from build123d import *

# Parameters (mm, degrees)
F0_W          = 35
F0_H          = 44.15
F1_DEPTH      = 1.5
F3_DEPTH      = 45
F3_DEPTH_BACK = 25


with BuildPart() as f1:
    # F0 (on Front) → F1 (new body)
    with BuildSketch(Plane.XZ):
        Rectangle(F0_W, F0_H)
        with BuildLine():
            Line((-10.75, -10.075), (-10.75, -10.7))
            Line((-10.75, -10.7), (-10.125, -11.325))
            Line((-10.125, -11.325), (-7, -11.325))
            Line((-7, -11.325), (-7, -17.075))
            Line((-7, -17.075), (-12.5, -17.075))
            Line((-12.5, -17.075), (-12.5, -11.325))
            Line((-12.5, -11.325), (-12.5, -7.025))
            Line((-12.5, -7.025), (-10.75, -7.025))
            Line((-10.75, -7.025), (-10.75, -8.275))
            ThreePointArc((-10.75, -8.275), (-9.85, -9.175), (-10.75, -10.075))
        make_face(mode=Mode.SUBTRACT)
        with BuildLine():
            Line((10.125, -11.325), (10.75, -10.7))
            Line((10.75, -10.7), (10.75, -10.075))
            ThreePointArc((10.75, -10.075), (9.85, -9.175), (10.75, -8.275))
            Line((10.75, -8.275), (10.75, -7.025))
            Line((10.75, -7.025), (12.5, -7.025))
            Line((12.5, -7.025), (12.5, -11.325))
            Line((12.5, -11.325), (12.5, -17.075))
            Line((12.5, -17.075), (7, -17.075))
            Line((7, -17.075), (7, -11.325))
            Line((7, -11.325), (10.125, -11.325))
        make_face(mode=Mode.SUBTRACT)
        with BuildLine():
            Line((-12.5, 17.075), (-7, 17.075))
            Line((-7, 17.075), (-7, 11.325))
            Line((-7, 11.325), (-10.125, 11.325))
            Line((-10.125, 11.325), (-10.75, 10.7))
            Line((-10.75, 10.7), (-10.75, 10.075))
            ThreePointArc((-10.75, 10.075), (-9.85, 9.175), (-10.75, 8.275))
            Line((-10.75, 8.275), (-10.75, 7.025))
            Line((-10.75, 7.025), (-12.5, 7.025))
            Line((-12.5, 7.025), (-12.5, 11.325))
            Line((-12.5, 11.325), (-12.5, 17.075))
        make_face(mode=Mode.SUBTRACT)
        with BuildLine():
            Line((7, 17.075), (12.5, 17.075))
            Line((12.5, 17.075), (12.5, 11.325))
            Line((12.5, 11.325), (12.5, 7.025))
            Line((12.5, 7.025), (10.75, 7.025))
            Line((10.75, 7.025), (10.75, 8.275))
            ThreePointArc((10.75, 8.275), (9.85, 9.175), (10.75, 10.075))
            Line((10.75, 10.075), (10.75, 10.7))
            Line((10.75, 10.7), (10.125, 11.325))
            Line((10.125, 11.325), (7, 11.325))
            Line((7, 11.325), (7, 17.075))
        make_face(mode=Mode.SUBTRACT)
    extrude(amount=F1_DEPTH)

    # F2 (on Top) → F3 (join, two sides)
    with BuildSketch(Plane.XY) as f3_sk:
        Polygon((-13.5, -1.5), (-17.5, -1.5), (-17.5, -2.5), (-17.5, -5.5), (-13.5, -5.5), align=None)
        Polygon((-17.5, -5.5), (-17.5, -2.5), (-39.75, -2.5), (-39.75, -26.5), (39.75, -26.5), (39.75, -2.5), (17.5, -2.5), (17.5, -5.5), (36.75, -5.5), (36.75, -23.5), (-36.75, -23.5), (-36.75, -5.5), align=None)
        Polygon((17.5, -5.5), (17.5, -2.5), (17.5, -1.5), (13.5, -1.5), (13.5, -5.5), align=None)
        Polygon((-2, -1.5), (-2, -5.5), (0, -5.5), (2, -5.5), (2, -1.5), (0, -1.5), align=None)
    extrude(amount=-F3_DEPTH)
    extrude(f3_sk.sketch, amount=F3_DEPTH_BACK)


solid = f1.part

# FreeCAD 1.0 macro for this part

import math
import FreeCAD as App
import Part
import Sketcher
from FreeCAD import Vector
Q = App.Units.Quantity


def add_polygon(sketch, points):
    """Adds a closed chain of lines whose ends are joined by coincident constraints."""
    first, n = sketch.GeometryCount, len(points)
    for a, b in zip(points, points[1:] + points[:1]):
        sketch.addGeometry(Part.LineSegment(App.Vector(*a, 0), App.Vector(*b, 0)), False)
    for i in range(n):
        sketch.addConstraint(Sketcher.Constraint("Coincident", first + i, 2, first + (i + 1) % n, 1))

doc = App.newDocument("Part")
body = doc.addObject("PartDesign::Body", "Body")

# Sketch on XZ plane
sketch1 = body.newObject("Sketcher::SketchObject", "Sketch")
sketch1.AttachmentSupport = (doc.getObject("XZ_Plane"), [""])
sketch1.MapMode = "FlatFace"
add_polygon(sketch1, [(-17.5, 22.1), (-17.5, -22.1), (17.5, -22.1), (17.5, 22.1)])  # lines 0-3
sketch1.addGeometry(Part.ArcOfCircle(Part.Circle(Vector(-10.8, -9.2, 0), Vector(0, 0, 1), 0.9), math.radians(-90), math.radians(90)), False)  # 4
sketch1.addGeometry(Part.LineSegment(Vector(-10.8, -10.1, 0), Vector(-10.8, -10.7, 0)), False)  # 5
sketch1.addGeometry(Part.LineSegment(Vector(-10.8, -10.7, 0), Vector(-10.1, -11.3, 0)), False)  # 6
sketch1.addGeometry(Part.LineSegment(Vector(-10.1, -11.3, 0), Vector(-7, -11.3, 0)), False)  # 7
sketch1.addGeometry(Part.LineSegment(Vector(-7, -11.3, 0), Vector(-7, -17.1, 0)), False)  # 8
sketch1.addGeometry(Part.LineSegment(Vector(-7, -17.1, 0), Vector(-12.5, -17.1, 0)), False)  # 9
sketch1.addGeometry(Part.LineSegment(Vector(-12.5, -17.1, 0), Vector(-12.5, -7, 0)), False)  # 10
sketch1.addGeometry(Part.LineSegment(Vector(-12.5, -7, 0), Vector(-10.8, -7, 0)), False)  # 11
sketch1.addGeometry(Part.LineSegment(Vector(-10.8, -7, 0), Vector(-10.8, -8.3, 0)), False)  # 12
sketch1.addGeometry(Part.LineSegment(Vector(7, -11.3, 0), Vector(10.1, -11.3, 0)), False)  # 13
sketch1.addGeometry(Part.LineSegment(Vector(10.1, -11.3, 0), Vector(10.8, -10.7, 0)), False)  # 14
sketch1.addGeometry(Part.LineSegment(Vector(10.8, -10.7, 0), Vector(10.8, -10.1, 0)), False)  # 15
sketch1.addGeometry(Part.ArcOfCircle(Part.Circle(Vector(10.8, -9.2, 0), Vector(0, 0, 1), 0.9), math.radians(90), math.radians(270)), False)  # 16
sketch1.addGeometry(Part.LineSegment(Vector(10.8, -8.3, 0), Vector(10.8, -7, 0)), False)  # 17
sketch1.addGeometry(Part.LineSegment(Vector(10.8, -7, 0), Vector(12.5, -7, 0)), False)  # 18
sketch1.addGeometry(Part.LineSegment(Vector(12.5, -7, 0), Vector(12.5, -17.1, 0)), False)  # 19
sketch1.addGeometry(Part.LineSegment(Vector(12.5, -17.1, 0), Vector(7, -17.1, 0)), False)  # 20
sketch1.addGeometry(Part.LineSegment(Vector(7, -17.1, 0), Vector(7, -11.3, 0)), False)  # 21
sketch1.addGeometry(Part.LineSegment(Vector(-12.5, 7, 0), Vector(-12.5, 17.1, 0)), False)  # 22
sketch1.addGeometry(Part.LineSegment(Vector(-12.5, 17.1, 0), Vector(-7, 17.1, 0)), False)  # 23
sketch1.addGeometry(Part.LineSegment(Vector(-7, 17.1, 0), Vector(-7, 11.3, 0)), False)  # 24
sketch1.addGeometry(Part.LineSegment(Vector(-7, 11.3, 0), Vector(-10.1, 11.3, 0)), False)  # 25
sketch1.addGeometry(Part.LineSegment(Vector(-10.1, 11.3, 0), Vector(-10.8, 10.7, 0)), False)  # 26
sketch1.addGeometry(Part.LineSegment(Vector(-10.8, 10.7, 0), Vector(-10.8, 10.1, 0)), False)  # 27
sketch1.addGeometry(Part.ArcOfCircle(Part.Circle(Vector(-10.8, 9.2, 0), Vector(0, 0, 1), 0.9), math.radians(-90), math.radians(90)), False)  # 28
sketch1.addGeometry(Part.LineSegment(Vector(-10.8, 8.3, 0), Vector(-10.8, 7, 0)), False)  # 29
sketch1.addGeometry(Part.LineSegment(Vector(-10.8, 7, 0), Vector(-12.5, 7, 0)), False)  # 30
sketch1.addGeometry(Part.LineSegment(Vector(7, 11.3, 0), Vector(7, 17.1, 0)), False)  # 31
sketch1.addGeometry(Part.LineSegment(Vector(7, 17.1, 0), Vector(12.5, 17.1, 0)), False)  # 32
sketch1.addGeometry(Part.LineSegment(Vector(12.5, 17.1, 0), Vector(12.5, 7, 0)), False)  # 33
sketch1.addGeometry(Part.LineSegment(Vector(12.5, 7, 0), Vector(10.8, 7, 0)), False)  # 34
sketch1.addGeometry(Part.LineSegment(Vector(10.8, 7, 0), Vector(10.8, 8.3, 0)), False)  # 35
sketch1.addGeometry(Part.ArcOfCircle(Part.Circle(Vector(10.8, 9.2, 0), Vector(0, 0, 1), 0.9), math.radians(90), math.radians(270)), False)  # 36
sketch1.addGeometry(Part.LineSegment(Vector(10.8, 10.1, 0), Vector(10.8, 10.7, 0)), False)  # 37
sketch1.addGeometry(Part.LineSegment(Vector(10.8, 10.7, 0), Vector(10.1, 11.3, 0)), False)  # 38
sketch1.addGeometry(Part.LineSegment(Vector(10.1, 11.3, 0), Vector(7, 11.3, 0)), False)  # 39
sketch1.addConstraint([
    Sketcher.Constraint("Coincident", 4, 1, 5, 1),
    Sketcher.Constraint("Coincident", 5, 2, 6, 1),
    Sketcher.Constraint("Coincident", 6, 2, 7, 1),
    Sketcher.Constraint("Coincident", 7, 2, 8, 1),
    Sketcher.Constraint("Coincident", 8, 2, 9, 1),
    Sketcher.Constraint("Coincident", 9, 2, 10, 1),
    Sketcher.Constraint("Coincident", 10, 2, 11, 1),
    Sketcher.Constraint("Coincident", 11, 2, 12, 1),
    Sketcher.Constraint("Coincident", 12, 2, 4, 2),
    Sketcher.Constraint("Coincident", 13, 2, 14, 1),
    Sketcher.Constraint("Coincident", 14, 2, 15, 1),
    Sketcher.Constraint("Coincident", 15, 2, 16, 2),
    Sketcher.Constraint("Coincident", 16, 1, 17, 1),
    Sketcher.Constraint("Coincident", 17, 2, 18, 1),
    Sketcher.Constraint("Coincident", 18, 2, 19, 1),
    Sketcher.Constraint("Coincident", 19, 2, 20, 1),
    Sketcher.Constraint("Coincident", 20, 2, 21, 1),
    Sketcher.Constraint("Coincident", 21, 2, 13, 1),
    Sketcher.Constraint("Coincident", 22, 2, 23, 1),
    Sketcher.Constraint("Coincident", 23, 2, 24, 1),
    Sketcher.Constraint("Coincident", 24, 2, 25, 1),
    Sketcher.Constraint("Coincident", 25, 2, 26, 1),
    Sketcher.Constraint("Coincident", 26, 2, 27, 1),
    Sketcher.Constraint("Coincident", 27, 2, 28, 2),
    Sketcher.Constraint("Coincident", 28, 1, 29, 1),
    Sketcher.Constraint("Coincident", 29, 2, 30, 1),
    Sketcher.Constraint("Coincident", 30, 2, 22, 1),
    Sketcher.Constraint("Coincident", 31, 2, 32, 1),
    Sketcher.Constraint("Coincident", 32, 2, 33, 1),
    Sketcher.Constraint("Coincident", 33, 2, 34, 1),
    Sketcher.Constraint("Coincident", 34, 2, 35, 1),
    Sketcher.Constraint("Coincident", 35, 2, 36, 2),
    Sketcher.Constraint("Coincident", 36, 1, 37, 1),
    Sketcher.Constraint("Coincident", 37, 2, 38, 1),
    Sketcher.Constraint("Coincident", 38, 2, 39, 1),
    Sketcher.Constraint("Coincident", 39, 2, 31, 1),
    Sketcher.Constraint("Vertical", 0),
    Sketcher.Constraint("Horizontal", 1),
    Sketcher.Constraint("Vertical", 2),
    Sketcher.Constraint("Horizontal", 3),
    Sketcher.Constraint("Vertical", 5),
    Sketcher.Constraint("Horizontal", 7),
    Sketcher.Constraint("Vertical", 8),
    Sketcher.Constraint("Horizontal", 9),
    Sketcher.Constraint("Vertical", 10),
    Sketcher.Constraint("Horizontal", 11),
    Sketcher.Constraint("Vertical", 12),
    Sketcher.Constraint("Horizontal", 13),
    Sketcher.Constraint("Vertical", 15),
    Sketcher.Constraint("Vertical", 17),
    Sketcher.Constraint("Horizontal", 18),
    Sketcher.Constraint("Vertical", 19),
    Sketcher.Constraint("Horizontal", 20),
    Sketcher.Constraint("Vertical", 21),
    Sketcher.Constraint("Vertical", 22),
    Sketcher.Constraint("Horizontal", 23),
    Sketcher.Constraint("Vertical", 24),
    Sketcher.Constraint("Horizontal", 25),
    Sketcher.Constraint("Vertical", 27),
    Sketcher.Constraint("Vertical", 29),
    Sketcher.Constraint("Horizontal", 30),
    Sketcher.Constraint("Vertical", 31),
    Sketcher.Constraint("Horizontal", 32),
    Sketcher.Constraint("Vertical", 33),
    Sketcher.Constraint("Horizontal", 34),
    Sketcher.Constraint("Vertical", 35),
    Sketcher.Constraint("Vertical", 37),
    Sketcher.Constraint("Horizontal", 39),
    Sketcher.Constraint("Equal", 4, 16),
    Sketcher.Constraint("Equal", 16, 28),
    Sketcher.Constraint("Equal", 28, 36),
    Sketcher.Constraint("Symmetric", 16, 3, 28, 3, -1, 1),
    Sketcher.Constraint("Symmetric", 4, 3, 36, 3, -1, 1),
    Sketcher.Constraint("Symmetric", 0, 2, 2, 2, -1, 1),
    Sketcher.Constraint("Symmetric", 19, 2, 22, 2, -1, 1),
    Sketcher.Constraint("Symmetric", 21, 2, 24, 2, -1, 1),
    Sketcher.Constraint("Symmetric", 14, 2, 26, 2, -1, 1),
    Sketcher.Constraint("Symmetric", 17, 2, 29, 2, -1, 1),
    Sketcher.Constraint("Symmetric", 8, 2, 31, 2, -1, 1),
    Sketcher.Constraint("Symmetric", 10, 2, 33, 2, -1, 1),
    Sketcher.Constraint("Symmetric", 5, 2, 37, 2, -1, 1),
    Sketcher.Constraint("Symmetric", 6, 2, 38, 2, -1, 1),
    Sketcher.Constraint("Symmetric", 4, 3, 16, 3, -2),
    Sketcher.Constraint("Symmetric", 6, 2, 13, 2, -2),
    Sketcher.Constraint("Symmetric", 5, 2, 14, 2, -2),
    Sketcher.Constraint("Symmetric", 11, 2, 17, 2, -2),
    Sketcher.Constraint("Symmetric", 9, 2, 19, 2, -2),
    Sketcher.Constraint("Perpendicular", 6, 14),
    Sketcher.Constraint("Parallel", 14, 26),
    Sketcher.Constraint("Vertical", 28, 3, 4, 1),
    Sketcher.Constraint("Vertical", 5, 2, 11, 2),
    Sketcher.Constraint("Vertical", 8, 2, 23, 2),
    Sketcher.Constraint("Vertical", 17, 2, 34, 2),
    Sketcher.Constraint("Radius", 4, Q("0.9 mm")),
    Sketcher.Constraint("DistanceX", 1, 1, 1, 2, Q("35 mm")),
    Sketcher.Constraint("DistanceX", 9, 2, 9, 1, Q("5.5 mm")),
    Sketcher.Constraint("DistanceX", 7, 2, -1, 1, Q("7 mm")),
    Sketcher.Constraint("DistanceY", 0, 2, 4, 1, Q("12 mm")),
    Sketcher.Constraint("DistanceY", 8, 2, 4, 1, Q("7 mm")),
    Sketcher.Constraint("DistanceX", 11, 1, 11, 2, Q("1.75 mm")),
    Sketcher.Constraint("DistanceY", 0, 2, 0, 1, Q("44.15 mm")),
    Sketcher.Constraint("DistanceY", 8, 2, 8, 1, Q("5.75 mm")),
    Sketcher.Constraint("DistanceY", 10, 1, 10, 2, Q("10.05 mm")),
    Sketcher.Constraint("DistanceY", 5, 2, -1, 1, Q("10.7 mm")),
])
pad1 = body.newObject("PartDesign::Pad", "Pad")
pad1.Profile = sketch1
pad1.Length = 1.5

# Sketch on XY plane
sketch2 = body.newObject("Sketcher::SketchObject", "Sketch001")
sketch2.AttachmentSupport = (doc.getObject("XY_Plane"), [""])
sketch2.MapMode = "FlatFace"
add_polygon(sketch2, [(-13.5, -1.5), (-17.5, -1.5), (-17.5, -2.5), (-39.8, -2.5), (-39.8, -26.5), (39.8, -26.5), (39.8, -2.5), (17.5, -2.5), (17.5, -1.5), (13.5, -1.5), (13.5, -5.5), (36.8, -5.5), (36.8, -23.5), (-36.8, -23.5), (-36.8, -5.5), (-13.5, -5.5)])  # lines 0-15
add_polygon(sketch2, [(-2, -1.5), (-2, -5.5), (2, -5.5), (2, -1.5)])  # lines 16-19
sketch2.addConstraint([
    Sketcher.Constraint("Horizontal", 0),
    Sketcher.Constraint("Vertical", 1),
    Sketcher.Constraint("Horizontal", 2),
    Sketcher.Constraint("Vertical", 3),
    Sketcher.Constraint("Horizontal", 4),
    Sketcher.Constraint("Vertical", 5),
    Sketcher.Constraint("Horizontal", 6),
    Sketcher.Constraint("Vertical", 7),
    Sketcher.Constraint("Horizontal", 8),
    Sketcher.Constraint("Vertical", 9),
    Sketcher.Constraint("Horizontal", 10),
    Sketcher.Constraint("Vertical", 11),
    Sketcher.Constraint("Horizontal", 12),
    Sketcher.Constraint("Vertical", 13),
    Sketcher.Constraint("Horizontal", 14),
    Sketcher.Constraint("Vertical", 15),
    Sketcher.Constraint("Vertical", 16),
    Sketcher.Constraint("Horizontal", 17),
    Sketcher.Constraint("Vertical", 18),
    Sketcher.Constraint("Horizontal", 19),
    Sketcher.Constraint("Symmetric", 2, 2, 5, 2, -2),
    Sketcher.Constraint("Symmetric", 0, 2, 7, 2, -2),
    Sketcher.Constraint("Symmetric", 10, 2, 13, 2, -2),
    Sketcher.Constraint("Horizontal", 14, 2, 16, 2),
    Sketcher.Constraint("Horizontal", 15, 2, 18, 2),
    Sketcher.Constraint("Equal", 0, 8),
    Sketcher.Constraint("Equal", 8, 17),
    Sketcher.Constraint("Equal", 19, 9),
    Sketcher.Constraint("DistanceX", 0, 2, 0, 1, Q("4 mm")),
    Sketcher.Constraint("DistanceY", 1, 2, 1, 1, Q("1 mm")),
    Sketcher.Constraint("DistanceY", 3, 2, 3, 1, Q("24 mm")),
    Sketcher.Constraint("DistanceY", 11, 2, 11, 1, Q("18 mm")),
    Sketcher.Constraint("DistanceX", 4, 1, 4, 2, Q("79.5 mm")),
    Sketcher.Constraint("DistanceX", 12, 2, 12, 1, Q("73.5 mm")),
    Sketcher.Constraint("DistanceX", 16, 2, -1, 1, Q("2 mm")),
    Sketcher.Constraint("DistanceX", 1, 2, 6, 2, Q("35 mm")),
    Sketcher.Constraint("DistanceY", 0, 2, -1, 1, Q("1.5 mm")),
])
pad2 = body.newObject("PartDesign::Pad", "Pad001")
pad2.Profile = sketch2
pad2.Type = "TwoLengths"
pad2.Length = 45
pad2.Length2 = 25
pad2.Reversed = True

doc.recompute()
